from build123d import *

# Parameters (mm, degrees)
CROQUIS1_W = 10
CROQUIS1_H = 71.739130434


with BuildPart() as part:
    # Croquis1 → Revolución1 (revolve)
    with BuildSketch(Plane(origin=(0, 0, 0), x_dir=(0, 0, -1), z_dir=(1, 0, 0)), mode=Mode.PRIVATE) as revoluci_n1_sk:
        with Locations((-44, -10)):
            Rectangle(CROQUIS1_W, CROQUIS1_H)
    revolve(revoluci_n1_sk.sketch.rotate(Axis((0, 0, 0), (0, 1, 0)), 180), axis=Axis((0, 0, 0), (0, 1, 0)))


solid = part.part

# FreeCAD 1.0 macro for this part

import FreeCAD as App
import Part
import Sketcher
from FreeCAD import Vector


def add_polygon(sketch, points):
    """Adds a closed chain of lines whose ends are joined by coincident constraints."""
    first, n = sketch.GeometryCount, len(points)
    for a, b in zip(points, points[1:] + points[:1]):
        sketch.addGeometry(Part.LineSegment(App.Vector(*a, 0), App.Vector(*b, 0)), False)
    for i in range(n):
        sketch.addConstraint(Sketcher.Constraint("Coincident", first + i, 2, first + (i + 1) % n, 1))

doc = App.newDocument("Part")
body = doc.addObject("PartDesign::Body", "Body")

sketch1 = doc.addObject("Sketcher::SketchObject", "Sketch")
body.addObject(sketch1)
sketch1.AttachmentSupport = (doc.YZ_Plane, [""])
sketch1.MapMode = "FlatFace"
add_polygon(sketch1, [(26, 49), (-46, 49), (-46, 39), (26, 39)])
sketch1.addConstraint(Sketcher.Constraint("Horizontal", 0))
sketch1.addConstraint(Sketcher.Constraint("Vertical", 1))
sketch1.addConstraint(Sketcher.Constraint("Horizontal", 2))
sketch1.addConstraint(Sketcher.Constraint("Vertical", 3))
sketch1.addConstraint(Sketcher.Constraint("DistanceY", 1, 2, 1, 1, 10.0))
sketch1.addConstraint(Sketcher.Constraint("DistanceY", -1, 1, 0, 2, 49.0))
sketch1.addConstraint(Sketcher.Constraint("DistanceX", 0, 2, 0, 1, 71.73913))
sketch1.addConstraint(Sketcher.Constraint("DistanceX", 0, 2, -1, 1, 45.869565))
revolution = doc.addObject("PartDesign::Revolution", "Revolution")
body.addObject(revolution)
revolution.Profile = sketch1
revolution.ReferenceAxis = (sketch1, ["H_Axis"])
revolution.Angle = 360

doc.recompute()
